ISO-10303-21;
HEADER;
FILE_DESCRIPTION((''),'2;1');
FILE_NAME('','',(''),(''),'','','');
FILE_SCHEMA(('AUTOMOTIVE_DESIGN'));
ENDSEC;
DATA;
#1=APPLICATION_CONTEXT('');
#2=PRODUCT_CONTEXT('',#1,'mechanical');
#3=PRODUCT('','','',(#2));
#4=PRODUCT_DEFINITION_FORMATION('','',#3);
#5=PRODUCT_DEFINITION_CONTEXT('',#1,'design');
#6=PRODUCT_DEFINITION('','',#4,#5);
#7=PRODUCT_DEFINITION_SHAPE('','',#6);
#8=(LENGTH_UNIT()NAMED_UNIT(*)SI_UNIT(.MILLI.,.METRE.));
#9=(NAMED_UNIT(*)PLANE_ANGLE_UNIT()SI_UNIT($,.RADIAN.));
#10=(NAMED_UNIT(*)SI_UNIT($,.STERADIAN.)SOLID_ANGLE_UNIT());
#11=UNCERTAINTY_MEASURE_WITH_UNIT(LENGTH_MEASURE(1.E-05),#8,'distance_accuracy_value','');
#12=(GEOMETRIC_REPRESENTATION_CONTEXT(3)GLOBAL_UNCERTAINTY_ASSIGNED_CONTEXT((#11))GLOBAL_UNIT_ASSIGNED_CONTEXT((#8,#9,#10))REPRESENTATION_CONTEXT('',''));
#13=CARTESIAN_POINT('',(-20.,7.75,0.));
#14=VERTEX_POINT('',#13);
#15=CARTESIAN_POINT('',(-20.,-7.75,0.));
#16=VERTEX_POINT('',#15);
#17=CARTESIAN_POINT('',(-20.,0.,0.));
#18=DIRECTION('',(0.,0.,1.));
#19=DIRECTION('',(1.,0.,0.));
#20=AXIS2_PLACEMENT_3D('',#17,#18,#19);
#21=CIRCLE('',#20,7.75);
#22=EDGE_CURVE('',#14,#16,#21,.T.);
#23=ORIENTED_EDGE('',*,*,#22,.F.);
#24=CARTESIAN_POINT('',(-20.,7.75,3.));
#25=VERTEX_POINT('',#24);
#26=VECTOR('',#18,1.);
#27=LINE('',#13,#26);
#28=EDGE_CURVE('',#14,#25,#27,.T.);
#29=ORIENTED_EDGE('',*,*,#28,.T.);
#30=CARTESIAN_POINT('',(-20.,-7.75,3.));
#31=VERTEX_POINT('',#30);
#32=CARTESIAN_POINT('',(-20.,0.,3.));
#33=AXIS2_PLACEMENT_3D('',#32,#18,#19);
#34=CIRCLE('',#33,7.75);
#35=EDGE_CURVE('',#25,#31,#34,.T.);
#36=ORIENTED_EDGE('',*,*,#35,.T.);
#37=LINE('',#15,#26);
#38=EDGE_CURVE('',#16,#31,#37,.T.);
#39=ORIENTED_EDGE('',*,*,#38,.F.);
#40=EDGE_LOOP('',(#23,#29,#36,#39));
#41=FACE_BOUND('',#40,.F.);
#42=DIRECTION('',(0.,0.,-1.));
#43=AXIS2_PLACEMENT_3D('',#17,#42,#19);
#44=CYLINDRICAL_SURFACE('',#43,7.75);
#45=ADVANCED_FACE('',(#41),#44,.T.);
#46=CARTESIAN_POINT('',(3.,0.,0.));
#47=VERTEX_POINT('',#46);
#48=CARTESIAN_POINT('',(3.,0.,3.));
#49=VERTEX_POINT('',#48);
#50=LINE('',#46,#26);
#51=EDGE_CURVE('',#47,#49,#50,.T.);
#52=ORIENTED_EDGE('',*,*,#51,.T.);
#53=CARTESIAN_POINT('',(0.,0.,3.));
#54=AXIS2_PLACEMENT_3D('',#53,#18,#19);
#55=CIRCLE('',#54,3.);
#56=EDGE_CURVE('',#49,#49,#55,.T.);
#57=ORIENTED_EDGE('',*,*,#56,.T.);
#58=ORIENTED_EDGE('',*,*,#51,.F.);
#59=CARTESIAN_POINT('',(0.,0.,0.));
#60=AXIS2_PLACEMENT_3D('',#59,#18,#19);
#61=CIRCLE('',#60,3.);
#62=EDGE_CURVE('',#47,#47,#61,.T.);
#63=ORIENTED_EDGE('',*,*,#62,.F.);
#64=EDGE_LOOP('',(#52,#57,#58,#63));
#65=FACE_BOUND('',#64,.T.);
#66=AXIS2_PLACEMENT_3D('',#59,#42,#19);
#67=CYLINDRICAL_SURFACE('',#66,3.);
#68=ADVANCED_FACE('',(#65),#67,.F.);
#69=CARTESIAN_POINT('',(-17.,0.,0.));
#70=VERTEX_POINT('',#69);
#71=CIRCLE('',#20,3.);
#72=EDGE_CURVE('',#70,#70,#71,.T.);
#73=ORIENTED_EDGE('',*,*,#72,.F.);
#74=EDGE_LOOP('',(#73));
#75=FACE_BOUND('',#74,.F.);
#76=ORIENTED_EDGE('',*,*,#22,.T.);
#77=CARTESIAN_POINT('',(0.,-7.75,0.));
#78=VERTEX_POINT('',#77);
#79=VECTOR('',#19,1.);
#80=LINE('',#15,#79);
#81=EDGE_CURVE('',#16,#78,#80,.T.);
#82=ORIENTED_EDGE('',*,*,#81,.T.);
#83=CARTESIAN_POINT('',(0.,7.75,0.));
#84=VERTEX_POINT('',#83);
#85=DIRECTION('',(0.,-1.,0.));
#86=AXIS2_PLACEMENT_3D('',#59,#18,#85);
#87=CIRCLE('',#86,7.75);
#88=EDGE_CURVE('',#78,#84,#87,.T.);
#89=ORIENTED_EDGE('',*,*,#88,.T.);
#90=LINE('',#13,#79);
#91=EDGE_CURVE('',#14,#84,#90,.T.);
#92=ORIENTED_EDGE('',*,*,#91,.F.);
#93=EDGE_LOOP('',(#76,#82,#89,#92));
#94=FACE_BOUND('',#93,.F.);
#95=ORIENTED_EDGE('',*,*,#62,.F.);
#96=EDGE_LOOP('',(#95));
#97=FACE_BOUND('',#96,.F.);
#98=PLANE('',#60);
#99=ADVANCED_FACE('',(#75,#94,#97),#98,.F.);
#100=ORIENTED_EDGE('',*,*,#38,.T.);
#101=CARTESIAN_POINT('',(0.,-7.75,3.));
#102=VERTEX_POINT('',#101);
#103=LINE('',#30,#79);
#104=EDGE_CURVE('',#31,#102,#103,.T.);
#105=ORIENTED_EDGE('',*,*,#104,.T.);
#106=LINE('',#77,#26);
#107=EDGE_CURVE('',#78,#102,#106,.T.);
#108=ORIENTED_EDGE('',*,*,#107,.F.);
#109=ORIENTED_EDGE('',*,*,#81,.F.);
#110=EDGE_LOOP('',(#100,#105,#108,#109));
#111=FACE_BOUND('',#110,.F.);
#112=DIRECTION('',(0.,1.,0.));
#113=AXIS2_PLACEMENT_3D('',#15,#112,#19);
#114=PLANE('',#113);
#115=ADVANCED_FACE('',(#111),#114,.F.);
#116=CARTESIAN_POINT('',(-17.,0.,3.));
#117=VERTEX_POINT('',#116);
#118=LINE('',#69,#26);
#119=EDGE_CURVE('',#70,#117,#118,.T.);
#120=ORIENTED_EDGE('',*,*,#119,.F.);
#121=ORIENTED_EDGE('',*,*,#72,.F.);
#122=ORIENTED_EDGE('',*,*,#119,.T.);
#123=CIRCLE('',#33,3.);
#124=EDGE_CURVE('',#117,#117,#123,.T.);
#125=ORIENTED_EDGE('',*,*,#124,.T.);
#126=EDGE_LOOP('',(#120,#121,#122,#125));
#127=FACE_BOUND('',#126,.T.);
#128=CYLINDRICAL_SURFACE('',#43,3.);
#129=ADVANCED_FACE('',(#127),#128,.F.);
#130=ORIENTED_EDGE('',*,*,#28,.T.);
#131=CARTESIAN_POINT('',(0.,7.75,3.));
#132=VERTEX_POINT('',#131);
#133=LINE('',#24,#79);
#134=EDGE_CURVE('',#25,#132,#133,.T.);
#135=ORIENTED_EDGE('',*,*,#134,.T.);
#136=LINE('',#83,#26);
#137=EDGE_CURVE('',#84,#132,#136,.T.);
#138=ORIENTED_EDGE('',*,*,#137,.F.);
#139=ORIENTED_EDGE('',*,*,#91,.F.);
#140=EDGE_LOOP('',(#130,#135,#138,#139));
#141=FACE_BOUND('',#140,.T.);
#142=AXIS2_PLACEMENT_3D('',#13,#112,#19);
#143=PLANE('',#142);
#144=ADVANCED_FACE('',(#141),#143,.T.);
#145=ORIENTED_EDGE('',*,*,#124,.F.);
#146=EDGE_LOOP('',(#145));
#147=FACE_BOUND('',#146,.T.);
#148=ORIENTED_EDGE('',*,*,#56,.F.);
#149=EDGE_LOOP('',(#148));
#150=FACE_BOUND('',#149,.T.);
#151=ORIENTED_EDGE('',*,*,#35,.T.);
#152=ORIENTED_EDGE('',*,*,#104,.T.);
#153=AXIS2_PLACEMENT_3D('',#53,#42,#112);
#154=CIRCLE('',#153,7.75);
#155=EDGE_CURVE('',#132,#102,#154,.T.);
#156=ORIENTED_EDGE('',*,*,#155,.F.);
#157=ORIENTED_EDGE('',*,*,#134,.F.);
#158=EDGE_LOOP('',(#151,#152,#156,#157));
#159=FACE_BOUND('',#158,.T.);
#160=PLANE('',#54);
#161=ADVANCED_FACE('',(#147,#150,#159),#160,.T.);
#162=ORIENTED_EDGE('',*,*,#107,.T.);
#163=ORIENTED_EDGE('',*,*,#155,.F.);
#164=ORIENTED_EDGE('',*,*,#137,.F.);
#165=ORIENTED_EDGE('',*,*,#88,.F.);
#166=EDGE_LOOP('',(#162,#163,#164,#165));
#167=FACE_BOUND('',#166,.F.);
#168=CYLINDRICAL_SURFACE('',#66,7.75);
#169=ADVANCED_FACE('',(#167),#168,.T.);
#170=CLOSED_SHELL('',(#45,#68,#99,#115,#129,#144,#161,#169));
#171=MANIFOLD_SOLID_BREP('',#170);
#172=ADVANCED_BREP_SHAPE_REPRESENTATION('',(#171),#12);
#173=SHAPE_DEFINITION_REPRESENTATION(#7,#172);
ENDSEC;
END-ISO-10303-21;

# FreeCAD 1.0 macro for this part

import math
import FreeCAD as App
import Part
import Sketcher

doc = App.newDocument("Part")
body = doc.addObject("PartDesign::Body", "Body")

# Sketch on XY plane
sketch1 = doc.addObject("Sketcher::SketchObject", "Sketch")
body.addObject(sketch1)
sketch1.AttachmentSupport = (doc.XY_Plane, [""])
sketch1.MapMode = "FlatFace"
sketch1.addGeometry([
    Part.ArcOfCircle(Part.Circle(App.Vector(0, 0, 0), App.Vector(0, 0, 1), 7.8), math.radians(-90), math.radians(90)),  # 0
    Part.LineSegment(App.Vector(0, 7.8, 0), App.Vector(-20, 7.8, 0)),  # 1
    Part.ArcOfCircle(Part.Circle(App.Vector(-20, 0, 0), App.Vector(0, 0, 1), 7.8), math.radians(90), math.radians(270)),  # 2
    Part.LineSegment(App.Vector(-20, -7.8, 0), App.Vector(0, -7.8, 0)),  # 3
    Part.Circle(App.Vector(0, 0, 0), App.Vector(0, 0, 1), 3),  # 4
    Part.Circle(App.Vector(-20, 0, 0), App.Vector(0, 0, 1), 3),  # 5
], False)
sketch1.addConstraint([
    Sketcher.Constraint("Tangent", 0, 2, 1, 1),
    Sketcher.Constraint("Tangent", 1, 2, 2, 1),
    Sketcher.Constraint("Tangent", 2, 2, 3, 1),
    Sketcher.Constraint("Tangent", 3, 2, 0, 1),
    Sketcher.Constraint("Horizontal", 1),
    Sketcher.Constraint("Horizontal", 3),
    Sketcher.Constraint("Coincident", 0, 3, -1, 1),
    Sketcher.Constraint("Coincident", 4, 3, -1, 1),
    Sketcher.Constraint("Coincident", 5, 3, 2, 3),
    Sketcher.Constraint("Equal", 4, 5),
    Sketcher.Constraint("Diameter", 4, 6.0),
    Sketcher.Constraint("DistanceX", 1, 2, 1, 1, 20.0),
    Sketcher.Constraint("Radius", 0, 7.75),
])
pad1 = doc.addObject("PartDesign::Pad", "Pad")
body.addObject(pad1)
pad1.Profile = sketch1
pad1.Length = 3

doc.recompute()
